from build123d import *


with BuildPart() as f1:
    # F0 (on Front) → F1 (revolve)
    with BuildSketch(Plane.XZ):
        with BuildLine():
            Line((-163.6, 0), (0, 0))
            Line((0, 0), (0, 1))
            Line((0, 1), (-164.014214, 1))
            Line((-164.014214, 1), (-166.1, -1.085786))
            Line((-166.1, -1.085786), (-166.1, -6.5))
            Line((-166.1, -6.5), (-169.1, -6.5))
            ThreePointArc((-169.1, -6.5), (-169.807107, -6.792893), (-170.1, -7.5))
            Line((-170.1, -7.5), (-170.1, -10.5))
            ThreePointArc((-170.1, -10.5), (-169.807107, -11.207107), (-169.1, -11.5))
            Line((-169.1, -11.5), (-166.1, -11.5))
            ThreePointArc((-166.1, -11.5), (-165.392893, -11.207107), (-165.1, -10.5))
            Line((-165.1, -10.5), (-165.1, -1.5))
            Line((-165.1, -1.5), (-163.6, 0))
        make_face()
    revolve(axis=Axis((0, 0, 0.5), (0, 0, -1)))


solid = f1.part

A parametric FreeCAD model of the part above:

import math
import FreeCAD as App
import Part
import Sketcher
Q = App.Units.Quantity

doc = App.newDocument("Part")
body = doc.addObject("PartDesign::Body", "Body")

# Sketch on XZ plane
sketch1 = body.newObject("Sketcher::SketchObject", "Sketch")
sketch1.AttachmentSupport = (doc.getObject("XZ_Plane"), [""])
sketch1.MapMode = "FlatFace"
sketch1.addGeometry(Part.LineSegment(App.Vector(-163.6, 0, 0), App.Vector(0, 0, 0)), False)
sketch1.addGeometry(Part.LineSegment(App.Vector(0, 0, 0), App.Vector(0, 1, 0)), False)
sketch1.addGeometry(Part.LineSegment(App.Vector(0, 1, 0), App.Vector(-164, 1, 0)), False)
sketch1.addGeometry(Part.LineSegment(App.Vector(-164, 1, 0), App.Vector(-166.1, -1.1, 0)), False)
sketch1.addGeometry(Part.LineSegment(App.Vector(-166.1, -1.1, 0), App.Vector(-166.1, -6.5, 0)), False)
sketch1.addGeometry(Part.LineSegment(App.Vector(-166.1, -6.5, 0), App.Vector(-169.1, -6.5, 0)), False)
sketch1.addGeometry(Part.ArcOfCircle(Part.Circle(App.Vector(-169.1, -7.5, 0), App.Vector(0, 0, 1), 1), math.radians(90), math.radians(180)), False)
sketch1.addGeometry(Part.LineSegment(App.Vector(-170.1, -7.5, 0), App.Vector(-170.1, -10.5, 0)), False)
sketch1.addGeometry(Part.ArcOfCircle(Part.Circle(App.Vector(-169.1, -10.5, 0), App.Vector(0, 0, 1), 1), math.radians(180), math.radians(270)), False)
sketch1.addGeometry(Part.LineSegment(App.Vector(-169.1, -11.5, 0), App.Vector(-166.1, -11.5, 0)), False)
sketch1.addGeometry(Part.ArcOfCircle(Part.Circle(App.Vector(-166.1, -10.5, 0), App.Vector(0, 0, 1), 1), math.radians(-90), math.radians(0)), False)
sketch1.addGeometry(Part.LineSegment(App.Vector(-165.1, -10.5, 0), App.Vector(-165.1, -1.5, 0)), False)
sketch1.addGeometry(Part.LineSegment(App.Vector(-165.1, -1.5, 0), App.Vector(-163.6, 0, 0)), False)
sketch1.addConstraint(Sketcher.Constraint("Coincident", 0, 2, 1, 1))
sketch1.addConstraint(Sketcher.Constraint("Coincident", 1, 2, 2, 1))
sketch1.addConstraint(Sketcher.Constraint("Coincident", 2, 2, 3, 1))
sketch1.addConstraint(Sketcher.Constraint("Coincident", 3, 2, 4, 1))
sketch1.addConstraint(Sketcher.Constraint("Coincident", 4, 2, 5, 1))
sketch1.addConstraint(Sketcher.Constraint("Tangent", 5, 2, 6, 1))
sketch1.addConstraint(Sketcher.Constraint("Tangent", 6, 2, 7, 1))
sketch1.addConstraint(Sketcher.Constraint("Tangent", 7, 2, 8, 1))
sketch1.addConstraint(Sketcher.Constraint("Tangent", 8, 2, 9, 1))
sketch1.addConstraint(Sketcher.Constraint("Tangent", 9, 2, 10, 1))
sketch1.addConstraint(Sketcher.Constraint("Tangent", 10, 2, 11, 1))
sketch1.addConstraint(Sketcher.Constraint("Coincident", 11, 2, 12, 1))
sketch1.addConstraint(Sketcher.Constraint("Coincident", 12, 2, 0, 1))
sketch1.addConstraint(Sketcher.Constraint("Horizontal", 0))
sketch1.addConstraint(Sketcher.Constraint("Vertical", 1))
sketch1.addConstraint(Sketcher.Constraint("Horizontal", 2))
sketch1.addConstraint(Sketcher.Constraint("Vertical", 4))
sketch1.addConstraint(Sketcher.Constraint("Horizontal", 5))
sketch1.addConstraint(Sketcher.Constraint("Vertical", 7))
sketch1.addConstraint(Sketcher.Constraint("Horizontal", 9))
sketch1.addConstraint(Sketcher.Constraint("Vertical", 11))
sketch1.addConstraint(Sketcher.Constraint("Coincident", 0, 2, -1, 1))
sketch1.addConstraint(Sketcher.Constraint("Equal", 6, 8))
sketch1.addConstraint(Sketcher.Constraint("Equal", 8, 10))
sketch1.addConstraint(Sketcher.Constraint("Parallel", 3, 12))
sketch1.addConstraint(Sketcher.Constraint("Vertical", 10, 3, 3, 2))
sketch1.addConstraint(Sketcher.Constraint("Equal", 9, 7))
sketch1.addConstraint(Sketcher.Constraint("Radius", 6, Q("0.999999 mm")))
sketch1.addConstraint(Sketcher.Constraint("DistanceX", 5, 2, 5, 1, Q("3 mm")))
sketch1.addConstraint(Sketcher.Constraint("DistanceY", 1, 1, 1, 2, Q("1 mm")))
sketch1.addConstraint(Sketcher.Constraint("DistanceY", 11, 1, 11, 2, Q("9 mm")))
sketch1.addConstraint(Sketcher.Constraint("Angle", 3, Q("-135 deg")))
sketch1.addConstraint(Sketcher.Constraint("DistanceX", 0, 1, 0, 2, Q("163.6 mm")))
sketch1.addConstraint(Sketcher.Constraint("DistanceX", 6, 3, -1, 1, Q("169.100001 mm")))
sketch1.addConstraint(Sketcher.Constraint("DistanceX", 2, 2, 2, 1, Q("164.014214 mm")))
revolution = body.newObject("PartDesign::Revolution", "Revolution")
revolution.Profile = sketch1
revolution.ReferenceAxis = (sketch1, ["V_Axis"])
revolution.Angle = 360

doc.recompute()
